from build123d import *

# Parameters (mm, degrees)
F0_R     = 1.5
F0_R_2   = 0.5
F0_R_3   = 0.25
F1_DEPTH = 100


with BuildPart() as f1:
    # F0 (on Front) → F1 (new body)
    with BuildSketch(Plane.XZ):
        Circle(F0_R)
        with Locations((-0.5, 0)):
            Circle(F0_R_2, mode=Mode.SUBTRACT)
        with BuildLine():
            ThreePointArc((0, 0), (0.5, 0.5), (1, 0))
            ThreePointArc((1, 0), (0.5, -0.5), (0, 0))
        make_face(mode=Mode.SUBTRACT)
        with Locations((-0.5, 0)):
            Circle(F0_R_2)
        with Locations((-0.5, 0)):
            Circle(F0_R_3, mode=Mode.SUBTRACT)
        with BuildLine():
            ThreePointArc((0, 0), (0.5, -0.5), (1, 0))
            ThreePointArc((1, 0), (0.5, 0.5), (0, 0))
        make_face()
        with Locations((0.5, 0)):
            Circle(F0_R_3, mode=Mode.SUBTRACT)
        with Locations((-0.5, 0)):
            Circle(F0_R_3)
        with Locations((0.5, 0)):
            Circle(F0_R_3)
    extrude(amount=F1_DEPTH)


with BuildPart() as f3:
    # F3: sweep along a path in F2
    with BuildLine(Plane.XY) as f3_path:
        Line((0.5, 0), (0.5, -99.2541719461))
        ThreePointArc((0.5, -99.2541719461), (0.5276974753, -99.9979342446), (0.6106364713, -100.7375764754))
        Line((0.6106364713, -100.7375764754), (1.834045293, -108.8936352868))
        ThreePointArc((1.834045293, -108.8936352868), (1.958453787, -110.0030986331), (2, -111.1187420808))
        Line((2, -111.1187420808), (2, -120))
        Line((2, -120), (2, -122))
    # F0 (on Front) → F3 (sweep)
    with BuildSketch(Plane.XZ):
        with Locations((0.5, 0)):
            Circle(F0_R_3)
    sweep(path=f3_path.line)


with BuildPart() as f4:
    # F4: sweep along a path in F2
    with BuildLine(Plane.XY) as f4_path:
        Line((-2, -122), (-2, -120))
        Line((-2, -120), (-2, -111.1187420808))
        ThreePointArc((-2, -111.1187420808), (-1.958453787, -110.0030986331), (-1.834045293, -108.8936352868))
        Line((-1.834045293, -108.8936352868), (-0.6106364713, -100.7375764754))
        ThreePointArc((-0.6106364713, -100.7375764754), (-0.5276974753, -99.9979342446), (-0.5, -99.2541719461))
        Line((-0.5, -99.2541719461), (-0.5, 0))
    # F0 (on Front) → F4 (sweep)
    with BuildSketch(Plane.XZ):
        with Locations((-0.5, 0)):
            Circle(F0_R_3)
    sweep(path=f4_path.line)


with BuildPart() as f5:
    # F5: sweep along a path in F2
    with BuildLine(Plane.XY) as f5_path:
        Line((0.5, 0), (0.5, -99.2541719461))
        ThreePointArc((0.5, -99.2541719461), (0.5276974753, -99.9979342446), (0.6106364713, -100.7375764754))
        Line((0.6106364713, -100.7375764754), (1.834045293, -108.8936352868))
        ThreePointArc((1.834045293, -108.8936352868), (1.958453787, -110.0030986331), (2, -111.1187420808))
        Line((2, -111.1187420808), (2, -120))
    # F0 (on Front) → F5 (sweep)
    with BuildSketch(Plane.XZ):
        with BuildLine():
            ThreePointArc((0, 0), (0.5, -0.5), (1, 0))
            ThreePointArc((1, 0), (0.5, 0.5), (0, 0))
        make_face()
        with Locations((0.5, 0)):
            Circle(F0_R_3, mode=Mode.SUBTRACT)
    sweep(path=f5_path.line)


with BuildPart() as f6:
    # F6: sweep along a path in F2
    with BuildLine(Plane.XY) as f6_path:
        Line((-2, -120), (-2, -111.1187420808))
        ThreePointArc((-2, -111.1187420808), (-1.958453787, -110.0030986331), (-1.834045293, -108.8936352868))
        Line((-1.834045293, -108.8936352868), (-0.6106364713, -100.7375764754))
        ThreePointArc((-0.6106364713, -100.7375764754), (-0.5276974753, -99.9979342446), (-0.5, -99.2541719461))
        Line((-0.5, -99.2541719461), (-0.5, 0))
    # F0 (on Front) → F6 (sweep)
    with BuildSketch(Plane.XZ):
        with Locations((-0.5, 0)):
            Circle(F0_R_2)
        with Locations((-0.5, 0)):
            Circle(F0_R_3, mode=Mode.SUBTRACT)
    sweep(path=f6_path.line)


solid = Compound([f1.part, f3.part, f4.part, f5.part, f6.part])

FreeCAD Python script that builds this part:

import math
import FreeCAD as App
import Part
import Sketcher
Q = App.Units.Quantity

doc = App.newDocument("Part")
body = doc.addObject("PartDesign::Body", "Body")

sketch1 = body.newObject("Sketcher::SketchObject", "Sketch")
sketch1.AttachmentSupport = (doc.getObject("XZ_Plane"), [""])
sketch1.MapMode = "FlatFace"
sketch1.addGeometry(Part.Circle(App.Vector(0, 0, 0), App.Vector(0, 0, 1), 1.5), False)
sketch1.addConstraint(Sketcher.Constraint("Coincident", 0, 3, -1, 1))
sketch1.addConstraint(Sketcher.Constraint("Diameter", 0, Q("3 mm")))
pad1 = body.newObject("PartDesign::Pad", "Pad")
pad1.Profile = sketch1
pad1.Length = 100
body2 = doc.addObject("PartDesign::Body", "Body001")

sketch2 = body2.newObject("Sketcher::SketchObject", "Sketch001")
sketch2.AttachmentSupport = (doc.getObject("XZ_Plane001"), [""])
sketch2.MapMode = "FlatFace"
sketch2.addGeometry(Part.Circle(App.Vector(0.5, 0, 0), App.Vector(0, 0, 1), 0.25), False)
sketch2.addConstraint(Sketcher.Constraint("PointOnObject", 0, 3, -1))
sketch2.addConstraint(Sketcher.Constraint("Diameter", 0, Q("0.5 mm")))
sketch2.addConstraint(Sketcher.Constraint("DistanceX", -1, 1, 0, 3, Q("0.5 mm")))

sketch3 = body2.newObject("Sketcher::SketchObject", "Sketch002")
sketch3.AttachmentSupport = (doc.getObject("XY_Plane001"), [""])
sketch3.MapMode = "FlatFace"
sketch3.addGeometry(Part.LineSegment(App.Vector(0.5, 0, 0), App.Vector(0.5, -99.3, 0)), False)
sketch3.addGeometry(Part.ArcOfCircle(Part.Circle(App.Vector(10.5, -99.3, 0), App.Vector(0, 0, 1), 10), math.radians(180), math.radians(188.53)), False)
sketch3.addGeometry(Part.LineSegment(App.Vector(0.6, -100.7, 0), App.Vector(1.8, -108.9, 0)), False)
sketch3.addGeometry(Part.ArcOfCircle(Part.Circle(App.Vector(-13, -111.1, 0), App.Vector(0, 0, 1), 15), math.radians(0), math.radians(8.53)), False)
sketch3.addGeometry(Part.LineSegment(App.Vector(2, -111.1, 0), App.Vector(2, -122, 0)), False)
sketch3.addConstraint(Sketcher.Constraint("Tangent", 0, 2, 1, 1))
sketch3.addConstraint(Sketcher.Constraint("Tangent", 1, 2, 2, 1))
sketch3.addConstraint(Sketcher.Constraint("Tangent", 2, 2, 3, 2))
sketch3.addConstraint(Sketcher.Constraint("Tangent", 3, 1, 4, 1))
sketch3.addConstraint(Sketcher.Constraint("Vertical", 0))
sketch3.addConstraint(Sketcher.Constraint("Vertical", 4))
sketch3.addConstraint(Sketcher.Constraint("PointOnObject", 0, 1, -1))
sketch3.addConstraint(Sketcher.Constraint("Radius", 1, Q("10 mm")))
sketch3.addConstraint(Sketcher.Constraint("Radius", 3, Q("15 mm")))
sketch3.addConstraint(Sketcher.Constraint("DistanceX", 3, 3, -1, 1, Q("13 mm")))
sketch3.addConstraint(Sketcher.Constraint("DistanceY", 4, 2, -1, 1, Q("122 mm")))
sketch3.addConstraint(Sketcher.Constraint("DistanceX", -1, 1, 1, 3, Q("10.5 mm")))
sketch3.addConstraint(Sketcher.Constraint("DistanceY", 0, 2, 0, 1, Q("99.254172 mm")))
sketch3.addConstraint(Sketcher.Constraint("DistanceY", 4, 2, 4, 1, Q("10.881258 mm")))
doc.recompute()

additivepipe = body2.newObject("PartDesign::AdditivePipe", "AdditivePipe")
additivepipe.Profile = sketch2
additivepipe.Spine = (sketch3, ["Edge1", "Edge2", "Edge3", "Edge4", "Edge5"])
body3 = doc.addObject("PartDesign::Body", "Body002")

sketch4 = body3.newObject("Sketcher::SketchObject", "Sketch003")
sketch4.AttachmentSupport = (doc.getObject("XZ_Plane002"), [""])
sketch4.MapMode = "FlatFace"
sketch4.addGeometry(Part.Circle(App.Vector(-0.5, 0, 0), App.Vector(0, 0, 1), 0.25), False)
sketch4.addConstraint(Sketcher.Constraint("PointOnObject", 0, 3, -1))
sketch4.addConstraint(Sketcher.Constraint("Diameter", 0, Q("0.5 mm")))
sketch4.addConstraint(Sketcher.Constraint("DistanceX", 0, 3, -1, 1, Q("0.5 mm")))

sketch5 = body3.newObject("Sketcher::SketchObject", "Sketch004")
sketch5.AttachmentSupport = (doc.getObject("XY_Plane002"), [""])
sketch5.MapMode = "FlatFace"
sketch5.addGeometry(Part.LineSegment(App.Vector(-2, -122, 0), App.Vector(-2, -111.1, 0)), False)
sketch5.addGeometry(Part.ArcOfCircle(Part.Circle(App.Vector(13, -111.1, 0), App.Vector(0, 0, 1), 15), math.radians(171.47), math.radians(180)), False)
sketch5.addGeometry(Part.LineSegment(App.Vector(-1.8, -108.9, 0), App.Vector(-0.6, -100.7, 0)), False)
sketch5.addGeometry(Part.ArcOfCircle(Part.Circle(App.Vector(-10.5, -99.3, 0), App.Vector(0, 0, 1), 10), math.radians(-8.53), math.radians(0)), False)
sketch5.addGeometry(Part.LineSegment(App.Vector(-0.5, -99.3, 0), App.Vector(-0.5, 0, 0)), False)
sketch5.addConstraint(Sketcher.Constraint("Tangent", 0, 2, 1, 2))
sketch5.addConstraint(Sketcher.Constraint("Tangent", 1, 1, 2, 1))
sketch5.addConstraint(Sketcher.Constraint("Tangent", 2, 2, 3, 1))
sketch5.addConstraint(Sketcher.Constraint("Tangent", 3, 2, 4, 1))
sketch5.addConstraint(Sketcher.Constraint("Vertical", 0))
sketch5.addConstraint(Sketcher.Constraint("Vertical", 4))
sketch5.addConstraint(Sketcher.Constraint("PointOnObject", 4, 2, -1))
sketch5.addConstraint(Sketcher.Constraint("Radius", 1, Q("15 mm")))
sketch5.addConstraint(Sketcher.Constraint("Radius", 3, Q("10 mm")))
sketch5.addConstraint(Sketcher.Constraint("DistanceX", -1, 1, 1, 3, Q("13 mm")))
sketch5.addConstraint(Sketcher.Constraint("DistanceY", 0, 1, -1, 1, Q("122 mm")))
sketch5.addConstraint(Sketcher.Constraint("DistanceX", 3, 3, -1, 1, Q("10.5 mm")))
sketch5.addConstraint(Sketcher.Constraint("DistanceY", 4, 1, 4, 2, Q("99.254172 mm")))
sketch5.addConstraint(Sketcher.Constraint("DistanceY", 0, 1, 0, 2, Q("10.881258 mm")))
doc.recompute()

additivepipe2 = body3.newObject("PartDesign::AdditivePipe", "AdditivePipe001")
additivepipe2.Profile = sketch4
additivepipe2.Spine = (sketch5, ["Edge1", "Edge2", "Edge3", "Edge4", "Edge5"])
body4 = doc.addObject("PartDesign::Body", "Body003")

sketch6 = body4.newObject("Sketcher::SketchObject", "Sketch005")
sketch6.AttachmentSupport = (doc.getObject("XZ_Plane003"), [""])
sketch6.MapMode = "FlatFace"
sketch6.addGeometry(Part.Circle(App.Vector(0.5, 0, 0), App.Vector(0, 0, 1), 0.5), False)
sketch6.addGeometry(Part.Circle(App.Vector(0.5, 0, 0), App.Vector(0, 0, 1), 0.25), False)
sketch6.addConstraint(Sketcher.Constraint("Coincident", 1, 3, 0, 3))
sketch6.addConstraint(Sketcher.Constraint("PointOnObject", 0, 3, -1))
sketch6.addConstraint(Sketcher.Constraint("Diameter", 0, Q("1 mm")))
sketch6.addConstraint(Sketcher.Constraint("Diameter", 1, Q("0.5 mm")))
sketch6.addConstraint(Sketcher.Constraint("DistanceX", -1, 1, 0, 3, Q("0.5 mm")))

sketch7 = body4.newObject("Sketcher::SketchObject", "Sketch006")
sketch7.AttachmentSupport = (doc.getObject("XY_Plane003"), [""])
sketch7.MapMode = "FlatFace"
sketch7.addGeometry(Part.LineSegment(App.Vector(0.5, 0, 0), App.Vector(0.5, -99.3, 0)), False)
sketch7.addGeometry(Part.ArcOfCircle(Part.Circle(App.Vector(10.5, -99.3, 0), App.Vector(0, 0, 1), 10), math.radians(180), math.radians(188.53)), False)
sketch7.addGeometry(Part.LineSegment(App.Vector(0.6, -100.7, 0), App.Vector(1.8, -108.9, 0)), False)
sketch7.addGeometry(Part.ArcOfCircle(Part.Circle(App.Vector(-13, -111.1, 0), App.Vector(0, 0, 1), 15), math.radians(0), math.radians(8.53)), False)
sketch7.addGeometry(Part.LineSegment(App.Vector(2, -111.1, 0), App.Vector(2, -120, 0)), False)
sketch7.addConstraint(Sketcher.Constraint("Tangent", 0, 2, 1, 1))
sketch7.addConstraint(Sketcher.Constraint("Tangent", 1, 2, 2, 1))
sketch7.addConstraint(Sketcher.Constraint("Tangent", 2, 2, 3, 2))
sketch7.addConstraint(Sketcher.Constraint("Tangent", 3, 1, 4, 1))
sketch7.addConstraint(Sketcher.Constraint("Vertical", 0))
sketch7.addConstraint(Sketcher.Constraint("Vertical", 4))
sketch7.addConstraint(Sketcher.Constraint("PointOnObject", 0, 1, -1))
sketch7.addConstraint(Sketcher.Constraint("Radius", 1, Q("10 mm")))
sketch7.addConstraint(Sketcher.Constraint("Radius", 3, Q("15 mm")))
sketch7.addConstraint(Sketcher.Constraint("DistanceX", 3, 3, -1, 1, Q("13 mm")))
sketch7.addConstraint(Sketcher.Constraint("DistanceY", 4, 2, -1, 1, Q("120 mm")))
sketch7.addConstraint(Sketcher.Constraint("DistanceX", -1, 1, 1, 3, Q("10.5 mm")))
sketch7.addConstraint(Sketcher.Constraint("DistanceY", 0, 2, 0, 1, Q("99.254172 mm")))
sketch7.addConstraint(Sketcher.Constraint("DistanceY", 4, 2, 4, 1, Q("8.881258 mm")))
doc.recompute()

additivepipe3 = body4.newObject("PartDesign::AdditivePipe", "AdditivePipe002")
additivepipe3.Profile = sketch6
additivepipe3.Spine = (sketch7, ["Edge1", "Edge2", "Edge3", "Edge4", "Edge5"])
body5 = doc.addObject("PartDesign::Body", "Body004")

sketch8 = body5.newObject("Sketcher::SketchObject", "Sketch007")
sketch8.AttachmentSupport = (doc.getObject("XZ_Plane004"), [""])
sketch8.MapMode = "FlatFace"
sketch8.addGeometry(Part.Circle(App.Vector(-0.5, 0, 0), App.Vector(0, 0, 1), 0.5), False)
sketch8.addGeometry(Part.Circle(App.Vector(-0.5, 0, 0), App.Vector(0, 0, 1), 0.25), False)
sketch8.addConstraint(Sketcher.Constraint("Coincident", 1, 3, 0, 3))
sketch8.addConstraint(Sketcher.Constraint("PointOnObject", 0, 3, -1))
sketch8.addConstraint(Sketcher.Constraint("Diameter", 0, Q("1 mm")))
sketch8.addConstraint(Sketcher.Constraint("Diameter", 1, Q("0.5 mm")))
sketch8.addConstraint(Sketcher.Constraint("DistanceX", 0, 3, -1, 1, Q("0.5 mm")))

sketch9 = body5.newObject("Sketcher::SketchObject", "Sketch008")
sketch9.AttachmentSupport = (doc.getObject("XY_Plane004"), [""])
sketch9.MapMode = "FlatFace"
sketch9.addGeometry(Part.LineSegment(App.Vector(-2, -120, 0), App.Vector(-2, -111.1, 0)), False)
sketch9.addGeometry(Part.ArcOfCircle(Part.Circle(App.Vector(13, -111.1, 0), App.Vector(0, 0, 1), 15), math.radians(171.47), math.radians(180)), False)
sketch9.addGeometry(Part.LineSegment(App.Vector(-1.8, -108.9, 0), App.Vector(-0.6, -100.7, 0)), False)
sketch9.addGeometry(Part.ArcOfCircle(Part.Circle(App.Vector(-10.5, -99.3, 0), App.Vector(0, 0, 1), 10), math.radians(-8.53), math.radians(0)), False)
sketch9.addGeometry(Part.LineSegment(App.Vector(-0.5, -99.3, 0), App.Vector(-0.5, 0, 0)), False)
sketch9.addConstraint(Sketcher.Constraint("Tangent", 0, 2, 1, 2))
sketch9.addConstraint(Sketcher.Constraint("Tangent", 1, 1, 2, 1))
sketch9.addConstraint(Sketcher.Constraint("Tangent", 2, 2, 3, 1))
sketch9.addConstraint(Sketcher.Constraint("Tangent", 3, 2, 4, 1))
sketch9.addConstraint(Sketcher.Constraint("Vertical", 0))
sketch9.addConstraint(Sketcher.Constraint("Vertical", 4))
sketch9.addConstraint(Sketcher.Constraint("PointOnObject", 4, 2, -1))
sketch9.addConstraint(Sketcher.Constraint("Radius", 1, Q("15 mm")))
sketch9.addConstraint(Sketcher.Constraint("Radius", 3, Q("10 mm")))
sketch9.addConstraint(Sketcher.Constraint("DistanceX", -1, 1, 1, 3, Q("13 mm")))
sketch9.addConstraint(Sketcher.Constraint("DistanceY", 0, 1, -1, 1, Q("120 mm")))
sketch9.addConstraint(Sketcher.Constraint("DistanceX", 3, 3, -1, 1, Q("10.5 mm")))
sketch9.addConstraint(Sketcher.Constraint("DistanceY", 4, 1, 4, 2, Q("99.254172 mm")))
sketch9.addConstraint(Sketcher.Constraint("DistanceY", 0, 1, 0, 2, Q("8.881258 mm")))
doc.recompute()

additivepipe4 = body5.newObject("PartDesign::AdditivePipe", "AdditivePipe003")
additivepipe4.Profile = sketch8
additivepipe4.Spine = (sketch9, ["Edge1", "Edge2", "Edge3", "Edge4", "Edge5"])

doc.recompute()
